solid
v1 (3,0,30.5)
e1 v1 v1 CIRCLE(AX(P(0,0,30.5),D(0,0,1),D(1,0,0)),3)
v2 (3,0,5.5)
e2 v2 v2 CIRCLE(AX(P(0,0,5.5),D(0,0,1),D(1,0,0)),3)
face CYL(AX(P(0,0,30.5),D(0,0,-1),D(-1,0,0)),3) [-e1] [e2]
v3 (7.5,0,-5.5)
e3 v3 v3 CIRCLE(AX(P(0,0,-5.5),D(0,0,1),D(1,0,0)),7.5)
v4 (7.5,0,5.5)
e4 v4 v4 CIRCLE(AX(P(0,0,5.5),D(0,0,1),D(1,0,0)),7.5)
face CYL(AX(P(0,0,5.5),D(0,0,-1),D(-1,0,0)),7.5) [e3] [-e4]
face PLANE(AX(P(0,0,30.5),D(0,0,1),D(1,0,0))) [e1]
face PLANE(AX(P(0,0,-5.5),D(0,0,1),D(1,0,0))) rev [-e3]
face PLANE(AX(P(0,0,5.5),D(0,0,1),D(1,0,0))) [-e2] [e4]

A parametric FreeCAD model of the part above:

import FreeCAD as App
import Part
import Sketcher

V = App.Vector

doc = App.newDocument("Part")
params = doc.addObject("Spreadsheet::Sheet", "Params")
for row, (alias, value) in enumerate([
    ("sketch1_diameter", "15 mm"),
    ("pad1_length", "11 mm"),
    ("sketch2_diameter", "6 mm"),
    ("pad2_length", "25 mm"),
], start=1):
    params.set(f"A{row}", alias)
    params.set(f"B{row}", "=" + value)
    params.setAlias(f"B{row}", alias)

body = doc.addObject("PartDesign::Body", "Body")

sketch1 = doc.addObject("Sketcher::SketchObject", "Sketch")
body.addObject(sketch1)
sketch1.AttachmentSupport = (doc.XY_Plane, [""])
sketch1.MapMode = "FlatFace"
sketch1.addGeometry(Part.Circle(V(0, 0, 0), V(0, 0, 1), 7.5), False)
sketch1.addConstraint([
    Sketcher.Constraint("Coincident", 0, 3, -1, 1),
    Sketcher.Constraint("Diameter", 0, 15.0),
])
sketch1.setExpression("Constraints[1]", "Params.sketch1_diameter")
pad1 = doc.addObject("PartDesign::Pad", "Pad")
body.addObject(pad1)
pad1.Profile = sketch1
pad1.setExpression("Length", "Params.pad1_length")
pad1.Midplane = True

sketch2 = doc.addObject("Sketcher::SketchObject", "Sketch001")
body.addObject(sketch2)
sketch2.AttachmentSupport = (doc.XY_Plane, [""])
sketch2.MapMode = "FlatFace"
sketch2.AttachmentOffset = App.Placement(V(0, 0, 5.5), App.Rotation())
sketch2.addGeometry(Part.Circle(V(0, 0, 0), V(0, 0, 1), 3), False)
sketch2.addConstraint([
    Sketcher.Constraint("Coincident", 0, 3, -1, 1),
    Sketcher.Constraint("Diameter", 0, 6.0),
])
sketch2.setExpression("Constraints[1]", "Params.sketch2_diameter")
pad2 = doc.addObject("PartDesign::Pad", "Pad001")
body.addObject(pad2)
pad2.Profile = sketch2
pad2.setExpression("Length", "Params.pad2_length")

doc.recompute()
